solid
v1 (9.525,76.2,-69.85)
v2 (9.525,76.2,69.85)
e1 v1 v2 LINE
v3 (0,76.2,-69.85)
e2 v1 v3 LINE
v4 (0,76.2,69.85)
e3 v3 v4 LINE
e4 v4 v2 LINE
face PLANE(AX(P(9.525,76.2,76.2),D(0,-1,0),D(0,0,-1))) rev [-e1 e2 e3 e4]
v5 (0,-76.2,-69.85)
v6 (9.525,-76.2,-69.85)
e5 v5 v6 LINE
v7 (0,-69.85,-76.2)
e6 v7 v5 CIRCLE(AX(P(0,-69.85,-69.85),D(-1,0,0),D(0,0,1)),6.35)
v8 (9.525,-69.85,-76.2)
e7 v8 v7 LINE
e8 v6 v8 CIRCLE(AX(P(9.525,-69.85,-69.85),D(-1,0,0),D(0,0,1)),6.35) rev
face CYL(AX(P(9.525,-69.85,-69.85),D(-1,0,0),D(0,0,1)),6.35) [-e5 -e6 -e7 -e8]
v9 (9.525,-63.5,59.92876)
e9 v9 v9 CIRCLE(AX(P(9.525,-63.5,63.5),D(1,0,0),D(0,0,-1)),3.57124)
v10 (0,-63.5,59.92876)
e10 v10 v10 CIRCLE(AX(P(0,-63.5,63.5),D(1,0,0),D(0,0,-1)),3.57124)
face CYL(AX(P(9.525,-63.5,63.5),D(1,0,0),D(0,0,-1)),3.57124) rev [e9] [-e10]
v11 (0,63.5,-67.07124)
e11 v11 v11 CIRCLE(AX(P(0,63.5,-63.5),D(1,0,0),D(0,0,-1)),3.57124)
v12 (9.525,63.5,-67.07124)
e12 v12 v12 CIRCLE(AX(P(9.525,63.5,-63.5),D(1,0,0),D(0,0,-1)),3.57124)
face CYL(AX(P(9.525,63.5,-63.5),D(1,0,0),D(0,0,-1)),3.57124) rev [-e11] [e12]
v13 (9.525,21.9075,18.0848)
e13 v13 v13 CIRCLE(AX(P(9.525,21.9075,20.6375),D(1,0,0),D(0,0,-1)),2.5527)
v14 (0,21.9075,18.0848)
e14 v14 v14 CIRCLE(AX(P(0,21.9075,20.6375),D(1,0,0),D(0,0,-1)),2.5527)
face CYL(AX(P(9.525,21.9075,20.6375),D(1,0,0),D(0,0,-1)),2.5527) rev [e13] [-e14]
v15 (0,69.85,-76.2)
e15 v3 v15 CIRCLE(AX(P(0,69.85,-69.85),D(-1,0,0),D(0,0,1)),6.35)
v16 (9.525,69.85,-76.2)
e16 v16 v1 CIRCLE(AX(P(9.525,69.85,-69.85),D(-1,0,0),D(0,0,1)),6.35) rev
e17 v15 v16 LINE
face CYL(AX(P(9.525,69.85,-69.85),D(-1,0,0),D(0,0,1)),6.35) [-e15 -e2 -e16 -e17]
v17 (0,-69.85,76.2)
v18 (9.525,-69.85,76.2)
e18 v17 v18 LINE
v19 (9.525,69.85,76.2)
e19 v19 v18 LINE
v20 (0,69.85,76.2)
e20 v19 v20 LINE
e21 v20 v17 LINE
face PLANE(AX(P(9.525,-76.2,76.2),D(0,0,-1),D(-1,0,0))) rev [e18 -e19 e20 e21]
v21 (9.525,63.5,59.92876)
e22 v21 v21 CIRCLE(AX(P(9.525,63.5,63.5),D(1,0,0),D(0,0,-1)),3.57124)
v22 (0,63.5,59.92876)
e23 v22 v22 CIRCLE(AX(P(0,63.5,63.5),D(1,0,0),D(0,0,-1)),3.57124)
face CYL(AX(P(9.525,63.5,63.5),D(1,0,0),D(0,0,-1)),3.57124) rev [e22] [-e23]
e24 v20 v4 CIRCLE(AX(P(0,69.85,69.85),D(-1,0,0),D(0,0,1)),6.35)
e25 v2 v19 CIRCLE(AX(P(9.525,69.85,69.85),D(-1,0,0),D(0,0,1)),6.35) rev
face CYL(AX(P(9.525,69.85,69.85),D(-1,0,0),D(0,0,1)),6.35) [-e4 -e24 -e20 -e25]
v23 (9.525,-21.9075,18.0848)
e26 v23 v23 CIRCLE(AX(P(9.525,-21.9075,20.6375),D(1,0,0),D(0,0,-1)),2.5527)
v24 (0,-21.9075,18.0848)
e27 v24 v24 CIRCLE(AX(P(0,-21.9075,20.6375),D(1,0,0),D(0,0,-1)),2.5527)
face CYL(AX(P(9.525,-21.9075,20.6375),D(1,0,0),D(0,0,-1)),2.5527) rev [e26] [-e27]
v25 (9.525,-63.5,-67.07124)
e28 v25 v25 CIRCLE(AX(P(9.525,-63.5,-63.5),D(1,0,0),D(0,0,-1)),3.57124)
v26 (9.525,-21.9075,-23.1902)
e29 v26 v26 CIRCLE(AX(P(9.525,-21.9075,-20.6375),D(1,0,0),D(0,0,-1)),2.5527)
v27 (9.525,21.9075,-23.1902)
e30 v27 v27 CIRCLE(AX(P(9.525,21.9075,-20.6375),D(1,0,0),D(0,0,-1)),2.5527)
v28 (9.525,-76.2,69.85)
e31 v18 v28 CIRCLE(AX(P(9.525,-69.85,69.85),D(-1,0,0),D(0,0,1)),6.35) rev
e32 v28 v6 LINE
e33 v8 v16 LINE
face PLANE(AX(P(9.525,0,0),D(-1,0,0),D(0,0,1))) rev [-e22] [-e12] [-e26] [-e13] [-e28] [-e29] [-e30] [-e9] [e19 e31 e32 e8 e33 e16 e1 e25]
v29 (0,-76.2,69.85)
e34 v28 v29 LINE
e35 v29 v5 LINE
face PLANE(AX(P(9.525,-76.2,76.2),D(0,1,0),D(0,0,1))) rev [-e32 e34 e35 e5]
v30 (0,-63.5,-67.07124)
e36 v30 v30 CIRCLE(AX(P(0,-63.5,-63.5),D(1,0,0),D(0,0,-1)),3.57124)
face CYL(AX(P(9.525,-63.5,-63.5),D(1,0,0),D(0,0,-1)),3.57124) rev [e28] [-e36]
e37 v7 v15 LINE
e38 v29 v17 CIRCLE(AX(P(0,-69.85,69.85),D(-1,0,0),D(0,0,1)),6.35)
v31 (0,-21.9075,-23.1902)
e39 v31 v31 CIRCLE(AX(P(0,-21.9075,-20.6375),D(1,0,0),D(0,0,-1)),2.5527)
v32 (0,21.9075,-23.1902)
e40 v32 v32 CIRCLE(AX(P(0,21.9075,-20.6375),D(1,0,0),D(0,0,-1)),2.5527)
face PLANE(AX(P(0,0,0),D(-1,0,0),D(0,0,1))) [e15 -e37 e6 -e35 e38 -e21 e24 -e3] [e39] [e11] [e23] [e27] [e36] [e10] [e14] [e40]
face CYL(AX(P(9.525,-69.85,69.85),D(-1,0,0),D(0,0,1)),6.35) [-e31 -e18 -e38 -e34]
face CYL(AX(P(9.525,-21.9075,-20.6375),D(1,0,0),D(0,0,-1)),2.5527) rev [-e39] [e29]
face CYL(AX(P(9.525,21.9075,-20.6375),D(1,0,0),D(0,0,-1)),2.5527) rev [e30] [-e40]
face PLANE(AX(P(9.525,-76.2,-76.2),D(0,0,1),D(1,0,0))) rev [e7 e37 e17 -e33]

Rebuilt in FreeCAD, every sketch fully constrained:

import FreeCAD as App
import Part
import Sketcher
Q = App.Units.Quantity


def edges_at(feature, points):
    """Names of the edges that pass closest to the given points."""
    edges = feature.Shape.Edges
    near = lambda p: min(range(len(edges)), key=lambda i: edges[i].distToShape(Part.Vertex(*p))[0])
    return sorted({f"Edge{near(p) + 1}" for p in points})

doc = App.newDocument("Part")
body = doc.addObject("PartDesign::Body", "Body")

# Sketch on YZ plane
sketch1 = body.newObject("Sketcher::SketchObject", "Sketch")
sketch1.AttachmentSupport = (doc.getObject("YZ_Plane"), [""])
sketch1.MapMode = "FlatFace"
sketch1.addGeometry([
    Part.LineSegment(App.Vector(76, 76, 0), App.Vector(-76, 76, 0)),
    Part.LineSegment(App.Vector(-76, 76, 0), App.Vector(-76, -76, 0)),
    Part.LineSegment(App.Vector(-76, -76, 0), App.Vector(76, -76, 0)),
    Part.LineSegment(App.Vector(76, -76, 0), App.Vector(76, 76, 0)),
], False)
sketch1.addConstraint([
    Sketcher.Constraint("Coincident", 0, 2, 1, 1),
    Sketcher.Constraint("Coincident", 1, 2, 2, 1),
    Sketcher.Constraint("Coincident", 2, 2, 3, 1),
    Sketcher.Constraint("Coincident", 3, 2, 0, 1),
    Sketcher.Constraint("Horizontal", 0),
    Sketcher.Constraint("Vertical", 1),
    Sketcher.Constraint("Horizontal", 2),
    Sketcher.Constraint("Vertical", 3),
    Sketcher.Constraint("Symmetric", 0, 2, 2, 2, -1, 1),
    Sketcher.Constraint("Equal", 2, 1),
    Sketcher.Constraint("DistanceX", 0, 2, 0, 1, Q("6 in")),
])
pad1 = body.newObject("PartDesign::Pad", "Pad")
pad1.Profile = sketch1
pad1.Length = Q("0.375 in")

# Sketch on YZ plane
sketch2 = body.newObject("Sketcher::SketchObject", "Sketch001")
sketch2.AttachmentSupport = (doc.getObject("YZ_Plane"), [""])
sketch2.MapMode = "FlatFace"
sketch2.AttachmentOffset = App.Placement(App.Vector(0, 0, 0.375 * 25.4), App.Rotation())
sketch2.addGeometry([
    Part.Circle(App.Vector(21.9, 20.6, 0), App.Vector(0, 0, 1), 2.6),
    Part.Circle(App.Vector(21.9, -20.6, 0), App.Vector(0, 0, 1), 2.6),
    Part.Circle(App.Vector(-21.9, -20.6, 0), App.Vector(0, 0, 1), 2.6),
    Part.Circle(App.Vector(-21.9, 20.6, 0), App.Vector(0, 0, 1), 2.6),
], False)
sketch2.addConstraint([
    Sketcher.Constraint("Equal", 0, 1),
    Sketcher.Constraint("Equal", 1, 2),
    Sketcher.Constraint("Equal", 2, 3),
    Sketcher.Constraint("Symmetric", 0, 3, 2, 3, -1, 1),
    Sketcher.Constraint("Symmetric", 1, 3, 3, 3, -1, 1),
    Sketcher.Constraint("Symmetric", 1, 3, 2, 3, -2),
    Sketcher.Constraint("Diameter", 0, Q("0.201 in")),
    Sketcher.Constraint("DistanceY", -1, 1, 0, 3, Q("0.8125 in")),
    Sketcher.Constraint("DistanceX", 2, 3, 1, 3, Q("1.725 in")),
])
doc.recompute()
hole = body.newObject("PartDesign::Hole", "Hole")
hole.Profile = sketch2
hole.ThreadType = "None"
hole.Diameter = Q("0.201 in")
hole.DepthType = "ThroughAll"
doc.recompute()

fillet = body.newObject("PartDesign::Fillet", "Fillet")
fillet.Base = (hole, edges_at(hole, [
    (4.763, -76.2, -76.2),
    (4.763, -76.2, 76.2),
    (4.763, 76.2, 76.2),
    (4.763, 76.2, -76.2),
]))
fillet.Radius = Q("0.25 in")

# Sketch on YZ plane
sketch3 = body.newObject("Sketcher::SketchObject", "Sketch002")
sketch3.AttachmentSupport = (doc.getObject("YZ_Plane"), [""])
sketch3.MapMode = "FlatFace"
sketch3.AttachmentOffset = App.Placement(App.Vector(0, 0, 0.375 * 25.4), App.Rotation())
sketch3.addGeometry([
    Part.Circle(App.Vector(63.5, 63.5, 0), App.Vector(0, 0, 1), 3.6),
    Part.Circle(App.Vector(63.5, -63.5, 0), App.Vector(0, 0, 1), 3.6),
    Part.Circle(App.Vector(-63.5, -63.5, 0), App.Vector(0, 0, 1), 3.6),
    Part.Circle(App.Vector(-63.5, 63.5, 0), App.Vector(0, 0, 1), 3.6),
], False)
sketch3.addConstraint([
    Sketcher.Constraint("Equal", 0, 1),
    Sketcher.Constraint("Equal", 1, 2),
    Sketcher.Constraint("Equal", 2, 3),
    Sketcher.Constraint("Symmetric", 0, 3, 2, 3, -1, 1),
    Sketcher.Constraint("Symmetric", 1, 3, 3, 3, -1, 1),
    Sketcher.Constraint("Symmetric", 1, 3, 2, 3, -2),
    Sketcher.Constraint("DistanceY", 1, 3, 0, 3, Q("5 in")),
    Sketcher.Constraint("DistanceX", 2, 3, 1, 3, Q("5 in")),
    Sketcher.Constraint("Diameter", 0, Q("0.2812 in")),
])
doc.recompute()
hole2 = body.newObject("PartDesign::Hole", "Hole001")
hole2.Profile = sketch3
hole2.ThreadType = "None"
hole2.Diameter = Q("0.2812 in")
hole2.DepthType = "ThroughAll"

doc.recompute()
